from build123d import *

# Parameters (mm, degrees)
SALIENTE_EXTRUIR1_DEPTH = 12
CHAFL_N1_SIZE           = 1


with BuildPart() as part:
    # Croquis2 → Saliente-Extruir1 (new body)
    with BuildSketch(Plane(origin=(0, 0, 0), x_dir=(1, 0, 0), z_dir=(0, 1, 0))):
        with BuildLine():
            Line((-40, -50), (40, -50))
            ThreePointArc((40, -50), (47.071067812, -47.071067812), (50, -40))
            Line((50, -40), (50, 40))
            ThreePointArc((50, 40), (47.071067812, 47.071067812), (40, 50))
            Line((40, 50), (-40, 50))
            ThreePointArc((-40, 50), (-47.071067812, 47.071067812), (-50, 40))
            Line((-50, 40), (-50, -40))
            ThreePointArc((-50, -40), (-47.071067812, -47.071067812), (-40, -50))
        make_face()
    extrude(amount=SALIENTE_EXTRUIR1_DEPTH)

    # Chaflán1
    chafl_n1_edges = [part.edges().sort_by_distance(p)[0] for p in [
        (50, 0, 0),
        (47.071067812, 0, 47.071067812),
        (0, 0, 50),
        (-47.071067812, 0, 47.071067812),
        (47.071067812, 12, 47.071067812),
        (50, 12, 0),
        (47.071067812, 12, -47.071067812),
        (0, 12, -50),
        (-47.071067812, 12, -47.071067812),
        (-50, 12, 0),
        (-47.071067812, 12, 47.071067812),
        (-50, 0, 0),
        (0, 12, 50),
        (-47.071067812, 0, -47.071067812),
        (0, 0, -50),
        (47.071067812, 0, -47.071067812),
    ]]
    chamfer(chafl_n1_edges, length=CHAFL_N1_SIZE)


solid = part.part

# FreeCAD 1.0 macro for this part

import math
import FreeCAD as App
import Part
import Sketcher

V = App.Vector


def edges_at(feature, points):
    """Names of the edges that pass closest to the given points."""
    edges = feature.Shape.Edges
    near = lambda p: min(range(len(edges)), key=lambda i: edges[i].distToShape(Part.Vertex(*p))[0])
    return sorted({f"Edge{near(p) + 1}" for p in points})

doc = App.newDocument("Part")
body = doc.addObject("PartDesign::Body", "Body")

sketch1 = body.newObject("Sketcher::SketchObject", "Sketch")
sketch1.AttachmentSupport = (doc.getObject("XZ_Plane"), [""])
sketch1.MapMode = "FlatFace"
sketch1.addGeometry([
    Part.LineSegment(V(-40, 50, 0), V(40, 50, 0)),
    Part.ArcOfCircle(Part.Circle(V(40, 40, 0), V(0, 0, 1), 10), math.radians(0), math.radians(90)),
    Part.LineSegment(V(50, 40, 0), V(50, -40, 0)),
    Part.ArcOfCircle(Part.Circle(V(40, -40, 0), V(0, 0, 1), 10), math.radians(-90), math.radians(0)),
    Part.LineSegment(V(40, -50, 0), V(-40, -50, 0)),
    Part.ArcOfCircle(Part.Circle(V(-40, -40, 0), V(0, 0, 1), 10), math.radians(180), math.radians(270)),
    Part.LineSegment(V(-50, -40, 0), V(-50, 40, 0)),
    Part.ArcOfCircle(Part.Circle(V(-40, 40, 0), V(0, 0, 1), 10), math.radians(90), math.radians(180)),
], False)
sketch1.addConstraint([
    Sketcher.Constraint("Tangent", 0, 2, 1, 2),
    Sketcher.Constraint("Tangent", 1, 1, 2, 1),
    Sketcher.Constraint("Tangent", 2, 2, 3, 2),
    Sketcher.Constraint("Tangent", 3, 1, 4, 1),
    Sketcher.Constraint("Tangent", 4, 2, 5, 2),
    Sketcher.Constraint("Tangent", 5, 1, 6, 1),
    Sketcher.Constraint("Tangent", 6, 2, 7, 2),
    Sketcher.Constraint("Tangent", 7, 1, 0, 1),
    Sketcher.Constraint("Horizontal", 0),
    Sketcher.Constraint("Vertical", 2),
    Sketcher.Constraint("Horizontal", 4),
    Sketcher.Constraint("Vertical", 6),
    Sketcher.Constraint("Equal", 1, 3),
    Sketcher.Constraint("Equal", 3, 5),
    Sketcher.Constraint("Equal", 5, 7),
    Sketcher.Constraint("Symmetric", 1, 3, 5, 3, -1, 1),
    Sketcher.Constraint("Equal", 4, 2),
    Sketcher.Constraint("Radius", 1, 10.0),
    Sketcher.Constraint("DistanceX", 0, 1, 0, 2, 80.0),
])
pad1 = body.newObject("PartDesign::Pad", "Pad")
pad1.Profile = sketch1
pad1.Length = 12
pad1.Reversed = True
doc.recompute()

chamfer = body.newObject("PartDesign::Chamfer", "Chamfer")
chamfer.Base = (pad1, edges_at(pad1, [
    (50, 0, 0),
    (47.071, 0, 47.071),
    (0, 0, 50),
    (-47.071, 0, 47.071),
    (47.071, 12, 47.071),
    (50, 12, 0),
    (47.071, 12, -47.071),
    (0, 12, -50),
    (-47.071, 12, -47.071),
    (-50, 12, 0),
    (-47.071, 12, 47.071),
    (-50, 0, 0),
    (0, 12, 50),
    (-47.071, 0, -47.071),
    (0, 0, -50),
    (47.071, 0, -47.071),
]))
chamfer.Size = 1

doc.recompute()
